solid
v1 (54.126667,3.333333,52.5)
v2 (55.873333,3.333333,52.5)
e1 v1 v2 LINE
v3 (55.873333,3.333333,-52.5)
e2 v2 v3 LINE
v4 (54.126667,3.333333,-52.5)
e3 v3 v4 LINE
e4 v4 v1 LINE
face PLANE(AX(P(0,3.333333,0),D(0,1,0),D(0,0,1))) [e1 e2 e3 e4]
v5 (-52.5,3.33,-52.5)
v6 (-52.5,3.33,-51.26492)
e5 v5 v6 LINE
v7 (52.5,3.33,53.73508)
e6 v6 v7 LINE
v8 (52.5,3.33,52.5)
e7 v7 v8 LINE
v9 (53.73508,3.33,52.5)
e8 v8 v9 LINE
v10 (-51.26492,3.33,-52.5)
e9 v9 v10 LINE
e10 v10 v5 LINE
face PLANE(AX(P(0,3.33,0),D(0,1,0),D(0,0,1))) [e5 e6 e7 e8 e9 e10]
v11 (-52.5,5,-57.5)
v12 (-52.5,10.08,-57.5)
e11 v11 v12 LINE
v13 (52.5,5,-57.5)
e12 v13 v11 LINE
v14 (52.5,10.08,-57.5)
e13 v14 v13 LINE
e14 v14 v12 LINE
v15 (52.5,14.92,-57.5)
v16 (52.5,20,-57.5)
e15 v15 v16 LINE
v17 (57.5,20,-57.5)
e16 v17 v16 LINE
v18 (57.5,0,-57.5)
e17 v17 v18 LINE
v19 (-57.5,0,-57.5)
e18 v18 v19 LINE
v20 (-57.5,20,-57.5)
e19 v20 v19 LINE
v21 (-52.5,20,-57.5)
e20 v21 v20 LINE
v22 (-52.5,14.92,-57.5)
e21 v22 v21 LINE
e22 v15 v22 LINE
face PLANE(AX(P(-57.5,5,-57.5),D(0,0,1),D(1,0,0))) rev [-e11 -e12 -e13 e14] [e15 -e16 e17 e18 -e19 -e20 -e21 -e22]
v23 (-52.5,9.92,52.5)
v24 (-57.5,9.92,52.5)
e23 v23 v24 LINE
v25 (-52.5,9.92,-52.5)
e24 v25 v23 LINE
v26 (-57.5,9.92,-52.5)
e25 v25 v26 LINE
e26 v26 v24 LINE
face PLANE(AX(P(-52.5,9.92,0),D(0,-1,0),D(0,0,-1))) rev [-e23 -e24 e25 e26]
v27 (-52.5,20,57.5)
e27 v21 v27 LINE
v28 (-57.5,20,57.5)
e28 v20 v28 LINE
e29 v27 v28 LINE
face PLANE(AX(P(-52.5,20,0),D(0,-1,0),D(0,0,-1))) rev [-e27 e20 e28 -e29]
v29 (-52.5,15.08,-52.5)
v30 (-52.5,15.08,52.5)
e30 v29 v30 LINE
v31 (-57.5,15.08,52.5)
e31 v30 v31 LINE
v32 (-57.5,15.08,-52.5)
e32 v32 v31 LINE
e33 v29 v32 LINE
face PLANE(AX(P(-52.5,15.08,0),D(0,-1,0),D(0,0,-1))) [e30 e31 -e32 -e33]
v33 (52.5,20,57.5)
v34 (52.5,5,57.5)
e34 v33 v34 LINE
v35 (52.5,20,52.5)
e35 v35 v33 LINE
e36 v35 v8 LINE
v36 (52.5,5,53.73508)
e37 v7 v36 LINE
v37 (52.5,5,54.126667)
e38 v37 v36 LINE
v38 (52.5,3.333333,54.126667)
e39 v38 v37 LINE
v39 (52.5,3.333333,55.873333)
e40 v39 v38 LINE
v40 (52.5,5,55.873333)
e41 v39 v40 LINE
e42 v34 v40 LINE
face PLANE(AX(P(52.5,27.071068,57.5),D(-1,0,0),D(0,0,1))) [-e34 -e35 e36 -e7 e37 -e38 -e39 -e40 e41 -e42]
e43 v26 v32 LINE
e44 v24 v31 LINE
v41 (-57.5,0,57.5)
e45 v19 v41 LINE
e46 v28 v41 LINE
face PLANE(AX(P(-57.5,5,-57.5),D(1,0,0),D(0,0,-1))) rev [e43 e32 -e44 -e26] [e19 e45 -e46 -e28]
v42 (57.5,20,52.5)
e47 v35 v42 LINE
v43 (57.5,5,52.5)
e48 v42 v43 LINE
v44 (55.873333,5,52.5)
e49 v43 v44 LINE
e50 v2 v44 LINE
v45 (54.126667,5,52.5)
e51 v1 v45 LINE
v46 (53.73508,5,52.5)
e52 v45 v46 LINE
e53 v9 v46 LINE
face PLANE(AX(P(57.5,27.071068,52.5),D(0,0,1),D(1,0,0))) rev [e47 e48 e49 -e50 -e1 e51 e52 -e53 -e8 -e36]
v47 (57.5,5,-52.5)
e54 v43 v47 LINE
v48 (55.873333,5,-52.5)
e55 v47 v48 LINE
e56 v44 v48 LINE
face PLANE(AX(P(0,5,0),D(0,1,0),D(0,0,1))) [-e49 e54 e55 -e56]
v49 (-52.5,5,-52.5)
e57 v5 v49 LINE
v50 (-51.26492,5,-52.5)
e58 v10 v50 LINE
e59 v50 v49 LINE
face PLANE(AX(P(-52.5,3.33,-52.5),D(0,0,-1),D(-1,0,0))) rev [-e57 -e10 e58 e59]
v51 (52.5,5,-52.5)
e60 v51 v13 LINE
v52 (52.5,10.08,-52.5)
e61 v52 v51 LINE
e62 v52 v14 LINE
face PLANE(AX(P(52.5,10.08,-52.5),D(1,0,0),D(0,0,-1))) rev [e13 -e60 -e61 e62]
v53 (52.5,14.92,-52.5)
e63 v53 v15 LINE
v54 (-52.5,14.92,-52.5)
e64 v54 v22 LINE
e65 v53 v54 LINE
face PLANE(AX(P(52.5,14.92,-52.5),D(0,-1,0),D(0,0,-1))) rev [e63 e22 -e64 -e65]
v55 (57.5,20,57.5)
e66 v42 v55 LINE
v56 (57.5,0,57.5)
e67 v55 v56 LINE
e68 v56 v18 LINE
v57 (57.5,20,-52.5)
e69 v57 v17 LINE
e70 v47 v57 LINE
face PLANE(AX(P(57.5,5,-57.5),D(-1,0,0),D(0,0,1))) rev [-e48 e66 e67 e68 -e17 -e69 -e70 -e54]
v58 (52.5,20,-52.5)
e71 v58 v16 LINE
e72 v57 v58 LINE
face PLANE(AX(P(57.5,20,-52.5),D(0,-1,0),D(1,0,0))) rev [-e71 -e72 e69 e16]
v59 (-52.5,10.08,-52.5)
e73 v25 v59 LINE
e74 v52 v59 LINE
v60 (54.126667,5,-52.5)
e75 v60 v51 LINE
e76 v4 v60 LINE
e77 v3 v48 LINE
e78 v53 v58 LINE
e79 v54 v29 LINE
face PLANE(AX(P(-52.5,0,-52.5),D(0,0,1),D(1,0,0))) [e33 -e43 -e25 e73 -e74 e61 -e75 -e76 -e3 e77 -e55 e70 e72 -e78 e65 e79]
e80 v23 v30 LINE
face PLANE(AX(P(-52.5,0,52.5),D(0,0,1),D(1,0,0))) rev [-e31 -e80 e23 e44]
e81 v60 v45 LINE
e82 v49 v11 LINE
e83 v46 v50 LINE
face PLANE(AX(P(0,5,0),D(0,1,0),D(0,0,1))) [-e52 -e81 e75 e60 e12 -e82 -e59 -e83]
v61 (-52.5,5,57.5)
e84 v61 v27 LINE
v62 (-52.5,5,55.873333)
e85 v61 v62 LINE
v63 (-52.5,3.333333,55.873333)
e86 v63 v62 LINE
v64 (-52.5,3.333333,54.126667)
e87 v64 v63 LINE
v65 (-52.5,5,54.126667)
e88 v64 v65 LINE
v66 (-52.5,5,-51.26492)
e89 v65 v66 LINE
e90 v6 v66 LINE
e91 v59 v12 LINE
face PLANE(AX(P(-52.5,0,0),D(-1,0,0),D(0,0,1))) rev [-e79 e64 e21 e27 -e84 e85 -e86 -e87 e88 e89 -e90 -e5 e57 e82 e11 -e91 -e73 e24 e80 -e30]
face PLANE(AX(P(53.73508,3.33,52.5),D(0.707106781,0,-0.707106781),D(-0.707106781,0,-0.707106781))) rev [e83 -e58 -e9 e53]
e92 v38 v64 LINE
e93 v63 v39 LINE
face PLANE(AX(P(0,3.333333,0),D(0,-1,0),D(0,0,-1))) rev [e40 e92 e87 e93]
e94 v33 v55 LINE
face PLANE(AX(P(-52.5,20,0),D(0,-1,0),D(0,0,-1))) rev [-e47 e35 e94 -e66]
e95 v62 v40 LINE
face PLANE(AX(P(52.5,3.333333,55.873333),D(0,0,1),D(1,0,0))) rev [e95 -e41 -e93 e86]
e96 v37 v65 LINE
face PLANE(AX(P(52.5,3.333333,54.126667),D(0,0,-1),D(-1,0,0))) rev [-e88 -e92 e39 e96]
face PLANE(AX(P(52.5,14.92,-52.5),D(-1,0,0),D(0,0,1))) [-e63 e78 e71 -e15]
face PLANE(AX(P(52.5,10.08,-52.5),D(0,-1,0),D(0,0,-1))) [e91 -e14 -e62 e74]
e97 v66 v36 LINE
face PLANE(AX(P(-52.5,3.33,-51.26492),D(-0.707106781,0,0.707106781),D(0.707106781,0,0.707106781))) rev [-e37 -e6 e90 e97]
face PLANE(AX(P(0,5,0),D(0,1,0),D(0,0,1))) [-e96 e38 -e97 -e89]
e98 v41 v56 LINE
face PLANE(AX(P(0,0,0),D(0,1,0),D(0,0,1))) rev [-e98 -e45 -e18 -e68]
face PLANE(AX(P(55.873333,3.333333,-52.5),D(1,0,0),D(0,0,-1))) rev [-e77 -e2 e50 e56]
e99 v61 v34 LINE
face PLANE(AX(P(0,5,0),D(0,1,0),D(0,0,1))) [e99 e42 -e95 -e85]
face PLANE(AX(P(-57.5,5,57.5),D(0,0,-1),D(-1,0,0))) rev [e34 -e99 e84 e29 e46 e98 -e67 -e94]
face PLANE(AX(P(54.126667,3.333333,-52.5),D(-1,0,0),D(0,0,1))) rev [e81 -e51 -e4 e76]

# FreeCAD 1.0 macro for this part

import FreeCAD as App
import Part
import Sketcher
Q = App.Units.Quantity


def add_polygon(sketch, points):
    """Adds a closed chain of lines whose ends are joined by coincident constraints."""
    first, n = sketch.GeometryCount, len(points)
    for a, b in zip(points, points[1:] + points[:1]):
        sketch.addGeometry(Part.LineSegment(App.Vector(*a, 0), App.Vector(*b, 0)), False)
    for i in range(n):
        sketch.addConstraint(Sketcher.Constraint("Coincident", first + i, 2, first + (i + 1) % n, 1))

doc = App.newDocument("Part")
params = doc.addObject("Spreadsheet::Sheet", "Params")
for row, (alias, value) in enumerate([
    ("sketch1_width", "115 mm"),
    ("pad1_length", "5 mm"),
    ("sketch2_width", "15 mm"),
    ("sketch2_height", "115 mm"),
    ("sketch2_height2", "105 mm"),
    ("sketch2_width2", "5.16 mm"),
    ("pad2_length", "5 mm"),
    ("sketch3_width", "5 mm"),
    ("sketch3_width2", "105 mm"),
    ("sketch3_height", "15 mm"),
    ("sketch3_height2", "5.08 mm"),
    ("pad3_length", "5 mm"),
    ("sketch4_width", "5 mm"),
    ("pad4_length", "15 mm"),
    ("sketch5_width", "105 mm"),
    ("pocket1_length", "1.666667 mm"),
    ("pocket2_length", "1.67 mm"),
], start=1):
    params.set(f"A{row}", alias)
    params.set(f"B{row}", "=" + value)
    params.setAlias(f"B{row}", alias)

body = doc.addObject("PartDesign::Body", "Body")

sketch1 = body.newObject("Sketcher::SketchObject", "Sketch")
sketch1.AttachmentSupport = (doc.getObject("XZ_Plane"), [""])
sketch1.MapMode = "FlatFace"
add_polygon(sketch1, [(-58, -58), (-58, 58), (58, 58), (58, -58)])
sketch1.addConstraint(Sketcher.Constraint("Vertical", 0))
sketch1.addConstraint(Sketcher.Constraint("Horizontal", 1))
sketch1.addConstraint(Sketcher.Constraint("Vertical", 2))
sketch1.addConstraint(Sketcher.Constraint("Horizontal", 3))
sketch1.addConstraint(Sketcher.Constraint("Symmetric", 0, 2, 2, 2, -1, 1))
sketch1.addConstraint(Sketcher.Constraint("Equal", 3, 0))
sketch1.addConstraint(Sketcher.Constraint("DistanceX", 1, 1, 1, 2, Q("115 mm")))
sketch1.setExpression("Constraints[10]", "Params.sketch1_width")
pad1 = body.newObject("PartDesign::Pad", "Pad")
pad1.Profile = sketch1
pad1.setExpression("Length", "Params.pad1_length")
pad1.Reversed = True

sketch2 = body.newObject("Sketcher::SketchObject", "Sketch001")
sketch2.AttachmentSupport = (doc.getObject("YZ_Plane"), [""])
sketch2.MapMode = "FlatFace"
sketch2.AttachmentOffset = App.Placement(App.Vector(0, 0, -57.5), App.Rotation())
add_polygon(sketch2, [(20, -58), (5, -58), (5, 58), (20, 58)])
add_polygon(sketch2, [(10, 52), (10, -52), (15, -52), (15, 52)])
sketch2.addConstraint(Sketcher.Constraint("Horizontal", 0))
sketch2.addConstraint(Sketcher.Constraint("Vertical", 1))
sketch2.addConstraint(Sketcher.Constraint("Horizontal", 2))
sketch2.addConstraint(Sketcher.Constraint("Vertical", 3))
sketch2.addConstraint(Sketcher.Constraint("Vertical", 4))
sketch2.addConstraint(Sketcher.Constraint("Horizontal", 5))
sketch2.addConstraint(Sketcher.Constraint("Vertical", 6))
sketch2.addConstraint(Sketcher.Constraint("Horizontal", 7))
sketch2.addConstraint(Sketcher.Constraint("DistanceX", 0, 2, 0, 1, Q("15 mm")))
sketch2.addConstraint(Sketcher.Constraint("DistanceY", 1, 1, 1, 2, Q("115 mm")))
sketch2.addConstraint(Sketcher.Constraint("DistanceY", 4, 2, 4, 1, Q("105 mm")))
sketch2.addConstraint(Sketcher.Constraint("DistanceX", -1, 1, 0, 2, Q("5 mm")))
sketch2.addConstraint(Sketcher.Constraint("DistanceY", 0, 2, 4, 2, Q("5 mm")))
sketch2.addConstraint(Sketcher.Constraint("DistanceX", 5, 1, 5, 2, Q("5.16 mm")))
sketch2.addConstraint(Sketcher.Constraint("DistanceY", 0, 2, -1, 1, Q("57.5 mm")))
sketch2.addConstraint(Sketcher.Constraint("DistanceX", -1, 1, 4, 2, Q("9.92 mm")))
sketch2.setExpression("Constraints[16]", "Params.sketch2_width")
sketch2.setExpression("Constraints[17]", "Params.sketch2_height")
sketch2.setExpression("Constraints[18]", "Params.sketch2_height2")
sketch2.setExpression("Constraints[21]", "Params.sketch2_width2")
pad2 = body.newObject("PartDesign::Pad", "Pad001")
pad2.Profile = sketch2
pad2.setExpression("Length", "Params.pad2_length")

sketch3 = body.newObject("Sketcher::SketchObject", "Sketch002")
sketch3.AttachmentSupport = (doc.getObject("XY_Plane"), [""])
sketch3.MapMode = "FlatFace"
sketch3.AttachmentOffset = App.Placement(App.Vector(0, 0, -52.5), App.Rotation())
add_polygon(sketch3, [(58, 5), (52, 5), (52, 10), (-52, 10), (-52, 5), (-58, 5), (-58, 20), (-52, 20), (-52, 15), (52, 15), (52, 20), (58, 20)])
sketch3.addConstraint(Sketcher.Constraint("Horizontal", 0))
sketch3.addConstraint(Sketcher.Constraint("Vertical", 1))
sketch3.addConstraint(Sketcher.Constraint("Horizontal", 2))
sketch3.addConstraint(Sketcher.Constraint("Vertical", 3))
sketch3.addConstraint(Sketcher.Constraint("Horizontal", 4))
sketch3.addConstraint(Sketcher.Constraint("Vertical", 5))
sketch3.addConstraint(Sketcher.Constraint("Horizontal", 6))
sketch3.addConstraint(Sketcher.Constraint("Vertical", 7))
sketch3.addConstraint(Sketcher.Constraint("Horizontal", 8))
sketch3.addConstraint(Sketcher.Constraint("Vertical", 9))
sketch3.addConstraint(Sketcher.Constraint("Horizontal", 10))
sketch3.addConstraint(Sketcher.Constraint("Vertical", 11))
sketch3.addConstraint(Sketcher.Constraint("Symmetric", 0, 2, 3, 2, -2))
sketch3.addConstraint(Sketcher.Constraint("Symmetric", 6, 2, 9, 2, -2))
sketch3.addConstraint(Sketcher.Constraint("Vertical", 3, 2, 6, 2))
sketch3.addConstraint(Sketcher.Constraint("Equal", 0, 4))
sketch3.addConstraint(Sketcher.Constraint("Equal", 3, 7))
sketch3.addConstraint(Sketcher.Constraint("DistanceX", 0, 2, 0, 1, Q("5 mm")))
sketch3.addConstraint(Sketcher.Constraint("DistanceX", 2, 2, 2, 1, Q("105 mm")))
sketch3.addConstraint(Sketcher.Constraint("DistanceY", 5, 1, 5, 2, Q("15 mm")))
sketch3.addConstraint(Sketcher.Constraint("DistanceY", -1, 1, 0, 2, Q("5 mm")))
sketch3.addConstraint(Sketcher.Constraint("DistanceY", 1, 1, 1, 2, Q("5.08 mm")))
sketch3.setExpression("Constraints[29]", "Params.sketch3_width")
sketch3.setExpression("Constraints[30]", "Params.sketch3_width2")
sketch3.setExpression("Constraints[31]", "Params.sketch3_height")
sketch3.setExpression("Constraints[33]", "Params.sketch3_height2")
pad3 = body.newObject("PartDesign::Pad", "Pad002")
pad3.Profile = sketch3
pad3.setExpression("Length", "Params.pad3_length")
pad3.Reversed = True

sketch4 = body.newObject("Sketcher::SketchObject", "Sketch003")
sketch4.AttachmentSupport = (doc.getObject("XZ_Plane"), [""])
sketch4.MapMode = "FlatFace"
sketch4.AttachmentOffset = App.Placement(App.Vector(0, 0, -5), App.Rotation())
add_polygon(sketch4, [(52, 52), (52, 58), (58, 58), (58, 52)])
sketch4.addConstraint(Sketcher.Constraint("Vertical", 0))
sketch4.addConstraint(Sketcher.Constraint("Horizontal", 1))
sketch4.addConstraint(Sketcher.Constraint("Vertical", 2))
sketch4.addConstraint(Sketcher.Constraint("Horizontal", 3))
sketch4.addConstraint(Sketcher.Constraint("Equal", 3, 0))
sketch4.addConstraint(Sketcher.Constraint("DistanceX", 1, 1, 1, 2, Q("5 mm")))
sketch4.addConstraint(Sketcher.Constraint("DistanceX", -1, 1, 0, 2, Q("52.5 mm")))
sketch4.addConstraint(Sketcher.Constraint("DistanceY", -1, 1, 0, 2, Q("57.5 mm")))
sketch4.setExpression("Constraints[9]", "Params.sketch4_width")
pad4 = body.newObject("PartDesign::Pad", "Pad003")
pad4.Profile = sketch4
pad4.setExpression("Length", "Params.pad4_length")
pad4.Reversed = True

sketch5 = body.newObject("Sketcher::SketchObject", "Sketch004")
sketch5.AttachmentSupport = (doc.getObject("XZ_Plane"), [""])
sketch5.MapMode = "FlatFace"
sketch5.AttachmentOffset = App.Placement(App.Vector(0, 0, -5), App.Rotation())
add_polygon(sketch5, [(54.1, -52.5), (54.1, 52.5), (55.9, 52.5), (55.9, -52.5)])
add_polygon(sketch5, [(-52.5, 54.1), (-52.5, 55.9), (52.5, 55.9), (52.5, 54.1)])
sketch5.addConstraint(Sketcher.Constraint("Vertical", 0))
sketch5.addConstraint(Sketcher.Constraint("Horizontal", 1))
sketch5.addConstraint(Sketcher.Constraint("Vertical", 2))
sketch5.addConstraint(Sketcher.Constraint("Horizontal", 3))
sketch5.addConstraint(Sketcher.Constraint("Vertical", 4))
sketch5.addConstraint(Sketcher.Constraint("Horizontal", 5))
sketch5.addConstraint(Sketcher.Constraint("Vertical", 6))
sketch5.addConstraint(Sketcher.Constraint("Horizontal", 7))
sketch5.addConstraint(Sketcher.Constraint("Equal", 7, 0))
sketch5.addConstraint(Sketcher.Constraint("Equal", 3, 4))
sketch5.addConstraint(Sketcher.Constraint("DistanceX", 5, 1, 5, 2, Q("105 mm")))
sketch5.addConstraint(Sketcher.Constraint("DistanceY", -1, 1, 0, 2, Q("52.5 mm")))
sketch5.addConstraint(Sketcher.Constraint("DistanceX", 4, 2, -1, 1, Q("52.5 mm")))
sketch5.addConstraint(Sketcher.Constraint("DistanceX", 1, 1, 1, 2, Q("1.746667 mm")))
sketch5.addConstraint(Sketcher.Constraint("DistanceX", -1, 1, 0, 2, Q("54.126667 mm")))
sketch5.addConstraint(Sketcher.Constraint("DistanceY", -1, 1, 4, 2, Q("55.873333 mm")))
sketch5.setExpression("Constraints[18]", "Params.sketch5_width")
pocket1 = body.newObject("PartDesign::Pocket", "Pocket")
pocket1.Profile = sketch5
pocket1.setExpression("Length", "Params.pocket1_length")
pocket1.Reversed = True

sketch6 = body.newObject("Sketcher::SketchObject", "Sketch005")
sketch6.AttachmentSupport = (doc.getObject("XZ_Plane"), [""])
sketch6.MapMode = "FlatFace"
sketch6.AttachmentOffset = App.Placement(App.Vector(0, 0, -5), App.Rotation())
add_polygon(sketch6, [(53.7, 52.5), (-51.3, -52.5), (-52.5, -52.5), (-52.5, -51.3), (52.5, 53.7), (52.5, 52.5)])
sketch6.addConstraint(Sketcher.Constraint("Horizontal", 1))
sketch6.addConstraint(Sketcher.Constraint("Vertical", 2))
sketch6.addConstraint(Sketcher.Constraint("Vertical", 4))
sketch6.addConstraint(Sketcher.Constraint("Horizontal", 5))
sketch6.addConstraint(Sketcher.Constraint("Symmetric", 1, 2, 4, 2, -1, 1))
sketch6.addConstraint(Sketcher.Constraint("Parallel", 0, 3))
sketch6.addConstraint(Sketcher.Constraint("Equal", 1, 5))
sketch6.addConstraint(Sketcher.Constraint("Equal", 5, 2))
sketch6.addConstraint(Sketcher.Constraint("Angle", 0, Q("-135 deg")))
sketch6.addConstraint(Sketcher.Constraint("DistanceX", 2, 2, 3, 2, Q("105 mm")))
sketch6.addConstraint(Sketcher.Constraint("DistanceX", 1, 2, 1, 1, Q("1.23508 mm")))
pocket2 = body.newObject("PartDesign::Pocket", "Pocket001")
pocket2.Profile = sketch6
pocket2.setExpression("Length", "Params.pocket2_length")
pocket2.Reversed = True

doc.recompute()
